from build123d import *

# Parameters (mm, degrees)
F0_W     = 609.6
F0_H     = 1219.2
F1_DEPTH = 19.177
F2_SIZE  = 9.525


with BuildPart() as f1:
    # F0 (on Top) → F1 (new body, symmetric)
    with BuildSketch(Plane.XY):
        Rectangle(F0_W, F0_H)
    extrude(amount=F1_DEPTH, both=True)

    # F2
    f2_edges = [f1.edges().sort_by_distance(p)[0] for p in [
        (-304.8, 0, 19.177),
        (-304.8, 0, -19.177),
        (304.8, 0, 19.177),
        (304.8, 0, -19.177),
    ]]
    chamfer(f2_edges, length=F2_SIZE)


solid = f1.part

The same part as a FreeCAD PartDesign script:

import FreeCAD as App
import Part
import Sketcher
from FreeCAD import Vector
Q = App.Units.Quantity


def edges_at(feature, points):
    """Names of the edges that pass closest to the given points."""
    edges = feature.Shape.Edges
    near = lambda p: min(range(len(edges)), key=lambda i: edges[i].distToShape(Part.Vertex(*p))[0])
    return sorted({f"Edge{near(p) + 1}" for p in points})


def add_polygon(sketch, points):
    """Adds a closed chain of lines whose ends are joined by coincident constraints."""
    first, n = sketch.GeometryCount, len(points)
    for a, b in zip(points, points[1:] + points[:1]):
        sketch.addGeometry(Part.LineSegment(App.Vector(*a, 0), App.Vector(*b, 0)), False)
    for i in range(n):
        sketch.addConstraint(Sketcher.Constraint("Coincident", first + i, 2, first + (i + 1) % n, 1))

doc = App.newDocument("Part")
body = doc.addObject("PartDesign::Body", "Body")

sketch1 = body.newObject("Sketcher::SketchObject", "Sketch")
sketch1.AttachmentSupport = (doc.getObject("XY_Plane"), [""])
sketch1.MapMode = "FlatFace"
add_polygon(sketch1, [(-304.8, 609.6), (-304.8, -609.6), (304.8, -609.6), (304.8, 609.6)])
sketch1.addConstraint([
    Sketcher.Constraint("Vertical", 0),
    Sketcher.Constraint("Horizontal", 1),
    Sketcher.Constraint("Vertical", 2),
    Sketcher.Constraint("Horizontal", 3),
    Sketcher.Constraint("Symmetric", 0, 2, 2, 2, -1, 1),
    Sketcher.Constraint("DistanceX", 1, 1, 1, 2, Q("24 in")),
    Sketcher.Constraint("DistanceY", 0, 2, 0, 1, Q("48 in")),
])
pad1 = body.newObject("PartDesign::Pad", "Pad")
pad1.Profile = sketch1
pad1.Length = Q("1.51 in")
pad1.Midplane = True
doc.recompute()

chamfer = body.newObject("PartDesign::Chamfer", "Chamfer")
chamfer.Base = (pad1, edges_at(pad1, [
    (-304.8, 0, 19.177),
    (-304.8, 0, -19.177),
    (304.8, 0, 19.177),
    (304.8, 0, -19.177),
]))
chamfer.Size = Q("0.375 in")

doc.recompute()
